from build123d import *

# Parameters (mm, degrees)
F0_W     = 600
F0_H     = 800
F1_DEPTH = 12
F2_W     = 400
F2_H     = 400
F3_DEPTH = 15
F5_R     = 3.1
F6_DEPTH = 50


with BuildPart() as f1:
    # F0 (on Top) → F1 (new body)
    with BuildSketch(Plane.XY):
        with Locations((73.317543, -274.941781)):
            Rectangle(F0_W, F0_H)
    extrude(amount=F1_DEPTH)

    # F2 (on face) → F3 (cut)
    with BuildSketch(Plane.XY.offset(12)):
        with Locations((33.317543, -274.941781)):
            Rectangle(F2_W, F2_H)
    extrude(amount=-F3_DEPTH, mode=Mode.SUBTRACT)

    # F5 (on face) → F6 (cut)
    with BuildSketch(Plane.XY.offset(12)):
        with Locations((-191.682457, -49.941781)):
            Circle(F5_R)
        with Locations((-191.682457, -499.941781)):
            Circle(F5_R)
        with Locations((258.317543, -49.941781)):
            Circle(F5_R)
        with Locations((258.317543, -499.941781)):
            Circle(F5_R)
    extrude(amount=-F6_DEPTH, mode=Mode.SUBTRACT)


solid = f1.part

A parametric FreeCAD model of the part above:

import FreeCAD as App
import Part
import Sketcher

V = App.Vector


def add_polygon(sketch, points):
    """Adds a closed chain of lines whose ends are joined by coincident constraints."""
    first, n = sketch.GeometryCount, len(points)
    for a, b in zip(points, points[1:] + points[:1]):
        sketch.addGeometry(Part.LineSegment(App.Vector(*a, 0), App.Vector(*b, 0)), False)
    for i in range(n):
        sketch.addConstraint(Sketcher.Constraint("Coincident", first + i, 2, first + (i + 1) % n, 1))

doc = App.newDocument("Part")
body = doc.addObject("PartDesign::Body", "Body")

sketch1 = body.newObject("Sketcher::SketchObject", "Sketch")
sketch1.AttachmentSupport = (doc.getObject("XY_Plane"), [""])
sketch1.MapMode = "FlatFace"
add_polygon(sketch1, [(-227, 125), (-227, -675), (373, -675), (373, 125)])
sketch1.addConstraint([
    Sketcher.Constraint("Vertical", 0),
    Sketcher.Constraint("Horizontal", 1),
    Sketcher.Constraint("Vertical", 2),
    Sketcher.Constraint("Horizontal", 3),
    Sketcher.Constraint("DistanceX", 1, 1, 1, 2, 600.0),
    Sketcher.Constraint("DistanceY", 0, 2, 0, 1, 800.0),
    Sketcher.Constraint("DistanceY", 0, 2, -1, 1, 674.941781),
    Sketcher.Constraint("DistanceX", 0, 2, -1, 1, 226.682457),
])
pad1 = body.newObject("PartDesign::Pad", "Pad")
pad1.Profile = sketch1
pad1.Length = 12

sketch2 = body.newObject("Sketcher::SketchObject", "Sketch001")
sketch2.AttachmentSupport = (doc.getObject("XY_Plane"), [""])
sketch2.MapMode = "FlatFace"
sketch2.AttachmentOffset = App.Placement(V(0, 0, 12), App.Rotation())
add_polygon(sketch2, [(-167, -75), (-167, -475), (233, -475), (233, -75)])
sketch2.addConstraint([
    Sketcher.Constraint("Vertical", 0),
    Sketcher.Constraint("Horizontal", 1),
    Sketcher.Constraint("Vertical", 2),
    Sketcher.Constraint("Horizontal", 3),
    Sketcher.Constraint("Equal", 3, 0),
    Sketcher.Constraint("DistanceX", 1, 1, 1, 2, 400.0),
    Sketcher.Constraint("DistanceY", 0, 2, -1, 1, 474.941781),
    Sketcher.Constraint("DistanceX", 0, 2, -1, 1, 166.682457),
])
pocket1 = body.newObject("PartDesign::Pocket", "Pocket")
pocket1.Profile = sketch2
pocket1.Length = 15

sketch3 = body.newObject("Sketcher::SketchObject", "Sketch002")
sketch3.AttachmentSupport = (doc.getObject("XY_Plane"), [""])
sketch3.MapMode = "FlatFace"
sketch3.AttachmentOffset = App.Placement(V(0, 0, 12), App.Rotation())
sketch3.addGeometry([
    Part.Circle(V(-191.7, -49.9, 0), V(0, 0, 1), 3.1),
    Part.Circle(V(-191.7, -499.9, 0), V(0, 0, 1), 3.1),
    Part.Circle(V(258.3, -49.9, 0), V(0, 0, 1), 3.1),
    Part.Circle(V(258.3, -499.9, 0), V(0, 0, 1), 3.1),
], False)
sketch3.addConstraint([
    Sketcher.Constraint("Equal", 0, 1),
    Sketcher.Constraint("Equal", 1, 2),
    Sketcher.Constraint("Equal", 2, 3),
    Sketcher.Constraint("Horizontal", 0, 3, 2, 3),
    Sketcher.Constraint("Horizontal", 1, 3, 3, 3),
    Sketcher.Constraint("Vertical", 0, 3, 1, 3),
    Sketcher.Constraint("Vertical", 2, 3, 3, 3),
    Sketcher.Constraint("Diameter", 0, 6.2),
    Sketcher.Constraint("DistanceY", 1, 3, 0, 3, 450.0),
    Sketcher.Constraint("DistanceX", 0, 3, 2, 3, 450.0),
    Sketcher.Constraint("DistanceY", 0, 3, -1, 1, 49.941781),
    Sketcher.Constraint("DistanceX", 0, 3, -1, 1, 191.682457),
])
pocket2 = body.newObject("PartDesign::Pocket", "Pocket001")
pocket2.Profile = sketch3
pocket2.Length = 50

doc.recompute()
